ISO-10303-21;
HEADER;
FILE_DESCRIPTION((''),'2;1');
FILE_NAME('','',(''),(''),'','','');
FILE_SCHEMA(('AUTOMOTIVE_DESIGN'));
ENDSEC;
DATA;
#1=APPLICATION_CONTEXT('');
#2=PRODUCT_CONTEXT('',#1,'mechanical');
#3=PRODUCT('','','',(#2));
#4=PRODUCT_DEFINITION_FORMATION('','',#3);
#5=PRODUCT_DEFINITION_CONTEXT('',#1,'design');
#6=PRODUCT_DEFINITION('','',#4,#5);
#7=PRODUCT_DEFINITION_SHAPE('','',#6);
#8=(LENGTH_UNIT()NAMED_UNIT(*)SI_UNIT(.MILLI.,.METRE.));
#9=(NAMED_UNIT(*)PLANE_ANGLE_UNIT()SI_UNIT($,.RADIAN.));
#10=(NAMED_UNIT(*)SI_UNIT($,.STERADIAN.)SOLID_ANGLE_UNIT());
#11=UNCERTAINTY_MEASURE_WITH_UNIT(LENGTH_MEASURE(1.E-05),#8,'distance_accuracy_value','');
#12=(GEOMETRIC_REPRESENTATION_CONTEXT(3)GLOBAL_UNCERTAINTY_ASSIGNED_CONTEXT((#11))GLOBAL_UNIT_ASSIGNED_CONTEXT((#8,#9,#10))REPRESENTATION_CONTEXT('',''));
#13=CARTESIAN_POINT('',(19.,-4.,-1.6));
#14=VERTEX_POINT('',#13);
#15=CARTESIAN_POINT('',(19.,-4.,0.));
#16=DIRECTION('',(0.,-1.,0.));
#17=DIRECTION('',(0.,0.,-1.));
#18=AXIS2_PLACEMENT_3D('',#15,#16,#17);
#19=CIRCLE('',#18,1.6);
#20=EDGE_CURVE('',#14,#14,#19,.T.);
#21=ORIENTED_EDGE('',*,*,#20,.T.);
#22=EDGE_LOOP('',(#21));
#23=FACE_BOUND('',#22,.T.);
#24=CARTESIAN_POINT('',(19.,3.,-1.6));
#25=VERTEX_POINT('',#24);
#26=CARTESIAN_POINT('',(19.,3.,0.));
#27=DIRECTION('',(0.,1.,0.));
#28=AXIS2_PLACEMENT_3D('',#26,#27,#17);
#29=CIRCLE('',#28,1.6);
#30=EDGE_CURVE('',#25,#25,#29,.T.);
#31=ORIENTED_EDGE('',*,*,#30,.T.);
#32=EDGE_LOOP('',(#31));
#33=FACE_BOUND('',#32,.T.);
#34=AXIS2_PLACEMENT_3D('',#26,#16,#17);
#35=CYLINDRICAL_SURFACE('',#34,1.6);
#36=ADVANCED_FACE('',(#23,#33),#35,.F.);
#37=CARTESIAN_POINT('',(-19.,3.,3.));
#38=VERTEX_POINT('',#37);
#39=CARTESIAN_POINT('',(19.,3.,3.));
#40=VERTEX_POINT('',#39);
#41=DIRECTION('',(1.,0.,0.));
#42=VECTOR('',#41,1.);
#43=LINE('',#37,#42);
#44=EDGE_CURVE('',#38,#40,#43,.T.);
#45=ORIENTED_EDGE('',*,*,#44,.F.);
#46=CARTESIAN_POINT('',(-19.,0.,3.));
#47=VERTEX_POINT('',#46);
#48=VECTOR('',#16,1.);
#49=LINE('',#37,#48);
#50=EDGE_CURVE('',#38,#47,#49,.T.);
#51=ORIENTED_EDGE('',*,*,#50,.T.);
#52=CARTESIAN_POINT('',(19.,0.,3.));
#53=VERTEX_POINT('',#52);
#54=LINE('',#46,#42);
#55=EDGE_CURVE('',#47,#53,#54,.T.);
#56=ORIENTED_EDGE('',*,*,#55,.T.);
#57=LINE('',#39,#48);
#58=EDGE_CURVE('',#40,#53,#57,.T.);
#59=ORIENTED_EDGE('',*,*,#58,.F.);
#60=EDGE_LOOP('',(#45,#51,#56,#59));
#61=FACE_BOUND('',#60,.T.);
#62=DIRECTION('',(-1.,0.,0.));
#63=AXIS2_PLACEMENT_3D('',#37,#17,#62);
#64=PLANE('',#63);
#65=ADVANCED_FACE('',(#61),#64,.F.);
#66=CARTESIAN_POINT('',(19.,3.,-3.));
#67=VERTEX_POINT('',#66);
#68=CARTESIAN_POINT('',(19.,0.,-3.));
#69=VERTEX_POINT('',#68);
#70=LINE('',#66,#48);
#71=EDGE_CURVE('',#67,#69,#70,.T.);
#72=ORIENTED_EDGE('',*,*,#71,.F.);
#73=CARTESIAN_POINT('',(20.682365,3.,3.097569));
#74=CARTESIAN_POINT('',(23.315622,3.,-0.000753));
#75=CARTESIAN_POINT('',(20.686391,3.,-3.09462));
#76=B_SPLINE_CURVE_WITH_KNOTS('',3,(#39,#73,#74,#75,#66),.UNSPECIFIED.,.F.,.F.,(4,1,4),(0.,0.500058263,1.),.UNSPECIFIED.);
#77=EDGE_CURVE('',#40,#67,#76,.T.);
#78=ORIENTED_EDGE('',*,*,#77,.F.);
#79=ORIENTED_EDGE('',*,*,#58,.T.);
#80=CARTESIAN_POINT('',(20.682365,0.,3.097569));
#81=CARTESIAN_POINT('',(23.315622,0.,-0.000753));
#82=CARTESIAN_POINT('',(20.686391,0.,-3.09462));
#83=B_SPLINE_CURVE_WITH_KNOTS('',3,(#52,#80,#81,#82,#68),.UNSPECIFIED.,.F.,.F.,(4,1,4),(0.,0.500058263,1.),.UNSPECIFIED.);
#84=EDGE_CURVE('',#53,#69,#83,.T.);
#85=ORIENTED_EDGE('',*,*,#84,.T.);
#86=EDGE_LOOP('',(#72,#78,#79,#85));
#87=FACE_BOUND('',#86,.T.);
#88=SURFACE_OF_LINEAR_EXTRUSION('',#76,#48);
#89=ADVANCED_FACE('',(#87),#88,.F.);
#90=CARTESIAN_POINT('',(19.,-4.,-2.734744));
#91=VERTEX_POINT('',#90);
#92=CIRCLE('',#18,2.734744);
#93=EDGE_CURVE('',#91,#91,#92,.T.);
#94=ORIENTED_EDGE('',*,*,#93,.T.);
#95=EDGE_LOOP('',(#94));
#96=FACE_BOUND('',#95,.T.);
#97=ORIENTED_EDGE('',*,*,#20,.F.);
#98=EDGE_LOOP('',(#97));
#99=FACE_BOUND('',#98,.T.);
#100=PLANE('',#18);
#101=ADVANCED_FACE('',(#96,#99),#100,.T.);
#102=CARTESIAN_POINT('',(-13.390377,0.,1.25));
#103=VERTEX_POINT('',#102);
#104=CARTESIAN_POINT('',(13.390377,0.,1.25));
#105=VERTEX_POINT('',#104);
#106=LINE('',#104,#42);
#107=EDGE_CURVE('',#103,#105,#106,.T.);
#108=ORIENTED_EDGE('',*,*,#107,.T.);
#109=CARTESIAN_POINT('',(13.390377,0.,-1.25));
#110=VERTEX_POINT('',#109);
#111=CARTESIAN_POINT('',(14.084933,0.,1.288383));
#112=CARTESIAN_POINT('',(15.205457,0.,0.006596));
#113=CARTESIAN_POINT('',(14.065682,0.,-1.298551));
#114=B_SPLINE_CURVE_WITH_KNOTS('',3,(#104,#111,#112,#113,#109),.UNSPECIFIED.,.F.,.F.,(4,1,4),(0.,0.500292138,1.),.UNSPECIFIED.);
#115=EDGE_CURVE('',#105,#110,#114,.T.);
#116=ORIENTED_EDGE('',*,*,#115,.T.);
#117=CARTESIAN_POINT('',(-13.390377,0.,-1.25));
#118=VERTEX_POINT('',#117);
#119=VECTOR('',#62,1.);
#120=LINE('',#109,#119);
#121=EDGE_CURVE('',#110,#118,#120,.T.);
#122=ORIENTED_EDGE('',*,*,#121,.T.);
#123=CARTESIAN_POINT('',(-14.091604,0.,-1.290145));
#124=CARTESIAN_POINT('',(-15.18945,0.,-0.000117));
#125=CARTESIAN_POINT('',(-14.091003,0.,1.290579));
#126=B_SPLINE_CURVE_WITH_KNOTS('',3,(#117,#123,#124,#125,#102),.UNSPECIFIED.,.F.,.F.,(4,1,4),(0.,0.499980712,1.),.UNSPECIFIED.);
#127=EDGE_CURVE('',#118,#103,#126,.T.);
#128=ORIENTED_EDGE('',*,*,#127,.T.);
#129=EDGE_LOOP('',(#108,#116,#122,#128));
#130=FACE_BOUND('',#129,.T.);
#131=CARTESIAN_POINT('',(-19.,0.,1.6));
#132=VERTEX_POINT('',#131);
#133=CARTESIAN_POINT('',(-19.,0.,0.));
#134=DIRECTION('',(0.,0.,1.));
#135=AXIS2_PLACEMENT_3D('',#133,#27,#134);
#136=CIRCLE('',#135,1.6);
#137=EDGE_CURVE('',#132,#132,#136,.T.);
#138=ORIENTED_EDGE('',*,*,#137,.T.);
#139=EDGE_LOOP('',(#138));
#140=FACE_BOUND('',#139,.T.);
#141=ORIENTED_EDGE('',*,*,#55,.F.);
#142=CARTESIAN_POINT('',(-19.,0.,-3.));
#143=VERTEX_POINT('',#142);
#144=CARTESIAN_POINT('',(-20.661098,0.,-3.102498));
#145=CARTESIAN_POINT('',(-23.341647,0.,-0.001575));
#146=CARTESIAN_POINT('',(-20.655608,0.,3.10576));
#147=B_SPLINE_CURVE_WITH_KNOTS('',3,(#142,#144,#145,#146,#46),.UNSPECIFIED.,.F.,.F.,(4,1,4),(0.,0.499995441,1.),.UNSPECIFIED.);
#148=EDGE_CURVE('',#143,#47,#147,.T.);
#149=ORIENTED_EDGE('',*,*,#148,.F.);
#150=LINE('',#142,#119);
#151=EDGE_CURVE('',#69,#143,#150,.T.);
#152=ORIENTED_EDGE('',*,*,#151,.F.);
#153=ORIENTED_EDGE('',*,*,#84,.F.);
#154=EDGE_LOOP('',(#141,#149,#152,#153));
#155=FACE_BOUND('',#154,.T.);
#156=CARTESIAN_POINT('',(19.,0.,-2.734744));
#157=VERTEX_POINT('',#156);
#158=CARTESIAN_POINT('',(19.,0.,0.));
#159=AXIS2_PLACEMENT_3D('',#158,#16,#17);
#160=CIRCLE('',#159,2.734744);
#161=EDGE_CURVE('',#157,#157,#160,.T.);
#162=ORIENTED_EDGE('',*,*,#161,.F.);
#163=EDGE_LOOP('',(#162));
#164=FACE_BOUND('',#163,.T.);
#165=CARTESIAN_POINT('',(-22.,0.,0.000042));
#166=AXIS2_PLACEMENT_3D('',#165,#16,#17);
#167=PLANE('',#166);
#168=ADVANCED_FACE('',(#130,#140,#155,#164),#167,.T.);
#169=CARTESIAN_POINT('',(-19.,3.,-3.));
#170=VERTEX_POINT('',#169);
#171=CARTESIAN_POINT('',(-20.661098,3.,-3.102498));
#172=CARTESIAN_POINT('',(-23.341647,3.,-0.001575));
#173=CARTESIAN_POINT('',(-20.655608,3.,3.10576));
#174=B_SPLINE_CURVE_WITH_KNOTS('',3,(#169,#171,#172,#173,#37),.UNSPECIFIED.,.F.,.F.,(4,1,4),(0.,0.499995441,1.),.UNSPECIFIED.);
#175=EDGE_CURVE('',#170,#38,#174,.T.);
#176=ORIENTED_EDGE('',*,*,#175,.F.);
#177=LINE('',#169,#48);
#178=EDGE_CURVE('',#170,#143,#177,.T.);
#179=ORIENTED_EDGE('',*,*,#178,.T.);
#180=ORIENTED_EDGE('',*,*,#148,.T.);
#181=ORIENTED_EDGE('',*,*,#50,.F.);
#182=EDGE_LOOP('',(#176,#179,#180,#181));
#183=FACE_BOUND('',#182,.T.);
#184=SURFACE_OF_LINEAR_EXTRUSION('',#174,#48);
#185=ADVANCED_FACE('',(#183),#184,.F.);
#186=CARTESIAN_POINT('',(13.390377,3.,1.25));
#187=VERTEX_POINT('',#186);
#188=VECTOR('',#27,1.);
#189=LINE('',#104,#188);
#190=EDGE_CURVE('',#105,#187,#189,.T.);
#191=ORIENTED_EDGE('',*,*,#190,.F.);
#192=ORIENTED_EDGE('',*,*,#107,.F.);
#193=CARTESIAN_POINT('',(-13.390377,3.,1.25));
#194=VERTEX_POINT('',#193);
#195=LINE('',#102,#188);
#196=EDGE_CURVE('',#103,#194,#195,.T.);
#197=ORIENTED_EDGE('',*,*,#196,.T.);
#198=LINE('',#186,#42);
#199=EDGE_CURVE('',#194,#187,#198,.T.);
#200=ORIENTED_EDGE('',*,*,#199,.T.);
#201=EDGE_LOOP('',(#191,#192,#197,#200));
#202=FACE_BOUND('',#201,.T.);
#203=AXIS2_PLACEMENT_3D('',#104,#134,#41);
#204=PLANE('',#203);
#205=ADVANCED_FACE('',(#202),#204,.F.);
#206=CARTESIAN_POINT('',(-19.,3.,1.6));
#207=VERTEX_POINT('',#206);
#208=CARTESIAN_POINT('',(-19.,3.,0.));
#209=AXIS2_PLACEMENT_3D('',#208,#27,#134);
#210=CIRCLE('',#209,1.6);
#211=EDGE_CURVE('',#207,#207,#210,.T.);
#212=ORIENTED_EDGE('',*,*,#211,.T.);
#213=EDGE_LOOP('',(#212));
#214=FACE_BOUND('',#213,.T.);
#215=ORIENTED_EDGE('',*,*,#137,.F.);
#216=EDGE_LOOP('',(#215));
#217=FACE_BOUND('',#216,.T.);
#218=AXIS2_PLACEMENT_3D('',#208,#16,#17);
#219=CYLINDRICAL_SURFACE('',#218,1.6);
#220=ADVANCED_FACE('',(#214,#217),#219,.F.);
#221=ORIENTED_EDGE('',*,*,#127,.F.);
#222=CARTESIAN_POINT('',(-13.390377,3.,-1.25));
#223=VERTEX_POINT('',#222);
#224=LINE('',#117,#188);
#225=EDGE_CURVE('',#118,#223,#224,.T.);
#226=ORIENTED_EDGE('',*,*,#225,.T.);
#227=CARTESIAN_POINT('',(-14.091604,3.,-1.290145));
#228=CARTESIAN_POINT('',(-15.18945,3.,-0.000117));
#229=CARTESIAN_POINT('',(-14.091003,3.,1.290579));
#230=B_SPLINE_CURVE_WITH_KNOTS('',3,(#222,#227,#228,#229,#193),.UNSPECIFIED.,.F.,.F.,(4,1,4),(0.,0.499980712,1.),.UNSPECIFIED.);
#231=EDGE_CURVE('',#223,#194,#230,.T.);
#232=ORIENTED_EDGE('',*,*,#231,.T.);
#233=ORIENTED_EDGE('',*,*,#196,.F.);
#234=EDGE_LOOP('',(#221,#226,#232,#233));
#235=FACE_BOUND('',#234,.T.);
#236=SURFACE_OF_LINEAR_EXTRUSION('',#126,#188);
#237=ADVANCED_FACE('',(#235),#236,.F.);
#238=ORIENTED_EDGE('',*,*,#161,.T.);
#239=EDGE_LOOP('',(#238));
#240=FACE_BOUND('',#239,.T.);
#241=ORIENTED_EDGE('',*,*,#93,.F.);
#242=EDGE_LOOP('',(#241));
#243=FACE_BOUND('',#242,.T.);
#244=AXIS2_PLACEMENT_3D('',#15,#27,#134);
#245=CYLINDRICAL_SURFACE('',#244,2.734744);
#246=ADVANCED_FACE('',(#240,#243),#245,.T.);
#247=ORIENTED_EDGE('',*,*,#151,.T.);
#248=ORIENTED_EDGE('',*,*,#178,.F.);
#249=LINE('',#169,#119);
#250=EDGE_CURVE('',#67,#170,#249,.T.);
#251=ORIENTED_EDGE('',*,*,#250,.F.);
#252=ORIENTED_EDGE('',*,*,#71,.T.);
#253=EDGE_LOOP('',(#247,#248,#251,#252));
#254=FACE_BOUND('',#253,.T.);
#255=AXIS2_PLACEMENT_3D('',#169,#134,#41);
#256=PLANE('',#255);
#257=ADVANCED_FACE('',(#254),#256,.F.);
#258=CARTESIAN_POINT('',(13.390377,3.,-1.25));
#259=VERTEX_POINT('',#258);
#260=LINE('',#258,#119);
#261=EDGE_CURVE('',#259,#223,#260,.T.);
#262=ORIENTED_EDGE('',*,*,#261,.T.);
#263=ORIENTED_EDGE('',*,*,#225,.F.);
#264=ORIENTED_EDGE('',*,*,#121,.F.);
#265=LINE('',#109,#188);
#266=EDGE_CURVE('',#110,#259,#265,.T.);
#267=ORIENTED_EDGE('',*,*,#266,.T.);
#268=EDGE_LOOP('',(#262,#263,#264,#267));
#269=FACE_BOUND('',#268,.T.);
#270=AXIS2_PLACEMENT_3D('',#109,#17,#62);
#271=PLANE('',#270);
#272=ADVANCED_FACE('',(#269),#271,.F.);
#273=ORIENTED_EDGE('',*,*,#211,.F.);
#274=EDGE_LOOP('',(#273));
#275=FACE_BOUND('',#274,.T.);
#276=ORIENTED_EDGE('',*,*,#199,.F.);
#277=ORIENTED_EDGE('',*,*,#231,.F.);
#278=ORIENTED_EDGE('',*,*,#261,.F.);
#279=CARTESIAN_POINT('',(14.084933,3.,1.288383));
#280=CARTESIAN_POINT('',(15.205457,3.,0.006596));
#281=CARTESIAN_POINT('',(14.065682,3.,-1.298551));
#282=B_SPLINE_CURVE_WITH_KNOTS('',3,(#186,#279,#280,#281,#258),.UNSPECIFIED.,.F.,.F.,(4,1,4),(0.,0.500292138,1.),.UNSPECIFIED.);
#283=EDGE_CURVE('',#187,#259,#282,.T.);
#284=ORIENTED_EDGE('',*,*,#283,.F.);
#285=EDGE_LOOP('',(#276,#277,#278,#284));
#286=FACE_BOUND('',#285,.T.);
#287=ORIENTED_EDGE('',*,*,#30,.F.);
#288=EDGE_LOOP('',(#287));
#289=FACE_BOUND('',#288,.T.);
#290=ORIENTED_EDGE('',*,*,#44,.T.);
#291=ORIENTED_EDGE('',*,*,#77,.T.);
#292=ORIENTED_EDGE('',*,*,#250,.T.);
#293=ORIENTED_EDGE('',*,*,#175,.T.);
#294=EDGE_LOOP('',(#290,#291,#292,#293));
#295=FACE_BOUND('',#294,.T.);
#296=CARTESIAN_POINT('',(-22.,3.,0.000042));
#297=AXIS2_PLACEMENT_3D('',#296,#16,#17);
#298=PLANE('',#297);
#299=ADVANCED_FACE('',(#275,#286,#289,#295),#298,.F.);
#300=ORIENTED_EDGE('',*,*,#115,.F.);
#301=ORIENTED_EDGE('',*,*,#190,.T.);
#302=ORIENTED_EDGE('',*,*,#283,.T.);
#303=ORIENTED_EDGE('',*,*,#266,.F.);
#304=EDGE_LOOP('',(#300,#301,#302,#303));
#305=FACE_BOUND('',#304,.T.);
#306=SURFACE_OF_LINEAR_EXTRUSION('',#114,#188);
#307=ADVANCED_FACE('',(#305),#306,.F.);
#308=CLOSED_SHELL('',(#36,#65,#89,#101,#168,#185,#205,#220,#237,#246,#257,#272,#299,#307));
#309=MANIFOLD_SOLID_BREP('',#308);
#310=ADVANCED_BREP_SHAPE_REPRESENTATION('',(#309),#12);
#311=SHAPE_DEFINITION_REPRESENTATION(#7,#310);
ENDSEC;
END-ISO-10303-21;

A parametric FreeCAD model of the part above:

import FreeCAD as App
import Part
import Sketcher
from FreeCAD import Vector

doc = App.newDocument("Part")
body = doc.addObject("PartDesign::Body", "Body")

# Sketch on XZ plane
sketch1 = body.newObject("Sketcher::SketchObject", "Sketch")
sketch1.AttachmentSupport = (doc.getObject("XZ_Plane"), [""])
sketch1.MapMode = "FlatFace"
sketch1.addGeometry(Part.LineSegment(Vector(19, -3, 0), Vector(-19, -3, 0)), False)
sketch1.addGeometry(Part.BSplineCurve([Vector(-19, -3, 0), Vector(-20.661098, -3.102498, 0), Vector(-23.341647, -0.001575, 0), Vector(-20.655608, 3.10576, 0), Vector(-19, 3, 0)], [4, 1, 4], [0, 0.499995441, 1], False, 3, [1, 1, 1, 1, 1], False), False)
sketch1.addGeometry(Part.LineSegment(Vector(-19, 3, 0), Vector(19, 3, 0)), False)
sketch1.addGeometry(Part.BSplineCurve([Vector(19, -3, 0), Vector(20.686391, -3.09462, 0), Vector(23.315622, -0.000753, 0), Vector(20.682365, 3.097569, 0), Vector(19, 3, 0)], [4, 1, 4], [0, 0.499941737, 1], False, 3, [1, 1, 1, 1, 1], False), False)
sketch1.addGeometry(Part.Circle(Vector(19, 0, 0), Vector(0, 0, 1), 1.6), False)
sketch1.addGeometry(Part.Circle(Vector(-19, 0, 0), Vector(0, 0, 1), 1.6), False)
sketch1.addConstraint(Sketcher.Constraint("Block", 1))
sketch1.addConstraint(Sketcher.Constraint("Block", 3))
sketch1.addConstraint(Sketcher.Constraint("Coincident", 0, 2, 1, 1))
sketch1.addConstraint(Sketcher.Constraint("Coincident", 1, 2, 2, 1))
sketch1.addConstraint(Sketcher.Constraint("Coincident", 2, 2, 3, 2))
sketch1.addConstraint(Sketcher.Constraint("Coincident", 3, 1, 0, 1))
sketch1.addConstraint(Sketcher.Constraint("Equal", 4, 5))
sketch1.addConstraint(Sketcher.Constraint("Symmetric", 4, 3, 5, 3, -1, 1))
sketch1.addConstraint(Sketcher.Constraint("PointOnObject", 4, 3, -1))
sketch1.addConstraint(Sketcher.Constraint("Vertical", 5, 3, 0, 2))
sketch1.addConstraint(Sketcher.Constraint("Diameter", 4, 3.2))
pad1 = body.newObject("PartDesign::Pad", "Pad")
pad1.Profile = sketch1
pad1.Length = 3
pad1.Reversed = True

# Sketch on XZ plane
sketch2 = body.newObject("Sketcher::SketchObject", "Sketch001")
sketch2.AttachmentSupport = (doc.getObject("XZ_Plane"), [""])
sketch2.MapMode = "FlatFace"
sketch2.AttachmentOffset = App.Placement(Vector(0, 0, 4), App.Rotation())
sketch2.addGeometry(Part.Circle(Vector(19, 0, 0), Vector(0, 0, 1), 2.734744), False)
sketch2.addGeometry(Part.Circle(Vector(19, 0, 0), Vector(0, 0, 1), 1.6), False)
sketch2.addConstraint(Sketcher.Constraint("Coincident", 1, 3, 0, 3))
sketch2.addConstraint(Sketcher.Constraint("PointOnObject", 0, 3, -1))
sketch2.addConstraint(Sketcher.Constraint("Diameter", 1, 3.2))
sketch2.addConstraint(Sketcher.Constraint("DistanceX", -1, 1, 0, 3, 19.0))
sketch2.addConstraint(Sketcher.Constraint("Diameter", 0, 5.469487))
pad2 = body.newObject("PartDesign::Pad", "Pad001")
pad2.Profile = sketch2
pad2.Length = 4
pad2.Reversed = True

# Sketch on XZ plane
sketch3 = body.newObject("Sketcher::SketchObject", "Sketch002")
sketch3.AttachmentSupport = (doc.getObject("XZ_Plane"), [""])
sketch3.MapMode = "FlatFace"
sketch3.AttachmentOffset = App.Placement(Vector(0, 0, -3), App.Rotation())
sketch3.addGeometry(Part.LineSegment(Vector(-13.390377, 1.25, 0), Vector(13.390377, 1.25, 0)), False)
sketch3.addGeometry(Part.BSplineCurve([Vector(13.390377, 1.25, 0), Vector(14.084933, 1.288383, 0), Vector(15.205457, 0.006596, 0), Vector(14.065682, -1.298551, 0), Vector(13.390377, -1.25, 0)], [4, 1, 4], [0, 0.500292138, 1], False, 3, [1, 1, 1, 1, 1], False), False)
sketch3.addGeometry(Part.LineSegment(Vector(13.390377, -1.25, 0), Vector(-13.390377, -1.25, 0)), False)
sketch3.addGeometry(Part.BSplineCurve([Vector(-13.390377, 1.25, 0), Vector(-14.091003, 1.290579, 0), Vector(-15.18945, -0.000117, 0), Vector(-14.091604, -1.290145, 0), Vector(-13.390377, -1.25, 0)], [4, 1, 4], [0, 0.500019288, 1], False, 3, [1, 1, 1, 1, 1], False), False)
sketch3.addConstraint(Sketcher.Constraint("Block", 1))
sketch3.addConstraint(Sketcher.Constraint("Block", 3))
sketch3.addConstraint(Sketcher.Constraint("Coincident", 0, 2, 1, 1))
sketch3.addConstraint(Sketcher.Constraint("Coincident", 1, 2, 2, 1))
sketch3.addConstraint(Sketcher.Constraint("Coincident", 2, 2, 3, 2))
sketch3.addConstraint(Sketcher.Constraint("Coincident", 3, 1, 0, 1))
pocket1 = body.newObject("PartDesign::Pocket", "Pocket")
pocket1.Profile = sketch3
pocket1.Length = 3
pocket1.Reversed = True

doc.recompute()
